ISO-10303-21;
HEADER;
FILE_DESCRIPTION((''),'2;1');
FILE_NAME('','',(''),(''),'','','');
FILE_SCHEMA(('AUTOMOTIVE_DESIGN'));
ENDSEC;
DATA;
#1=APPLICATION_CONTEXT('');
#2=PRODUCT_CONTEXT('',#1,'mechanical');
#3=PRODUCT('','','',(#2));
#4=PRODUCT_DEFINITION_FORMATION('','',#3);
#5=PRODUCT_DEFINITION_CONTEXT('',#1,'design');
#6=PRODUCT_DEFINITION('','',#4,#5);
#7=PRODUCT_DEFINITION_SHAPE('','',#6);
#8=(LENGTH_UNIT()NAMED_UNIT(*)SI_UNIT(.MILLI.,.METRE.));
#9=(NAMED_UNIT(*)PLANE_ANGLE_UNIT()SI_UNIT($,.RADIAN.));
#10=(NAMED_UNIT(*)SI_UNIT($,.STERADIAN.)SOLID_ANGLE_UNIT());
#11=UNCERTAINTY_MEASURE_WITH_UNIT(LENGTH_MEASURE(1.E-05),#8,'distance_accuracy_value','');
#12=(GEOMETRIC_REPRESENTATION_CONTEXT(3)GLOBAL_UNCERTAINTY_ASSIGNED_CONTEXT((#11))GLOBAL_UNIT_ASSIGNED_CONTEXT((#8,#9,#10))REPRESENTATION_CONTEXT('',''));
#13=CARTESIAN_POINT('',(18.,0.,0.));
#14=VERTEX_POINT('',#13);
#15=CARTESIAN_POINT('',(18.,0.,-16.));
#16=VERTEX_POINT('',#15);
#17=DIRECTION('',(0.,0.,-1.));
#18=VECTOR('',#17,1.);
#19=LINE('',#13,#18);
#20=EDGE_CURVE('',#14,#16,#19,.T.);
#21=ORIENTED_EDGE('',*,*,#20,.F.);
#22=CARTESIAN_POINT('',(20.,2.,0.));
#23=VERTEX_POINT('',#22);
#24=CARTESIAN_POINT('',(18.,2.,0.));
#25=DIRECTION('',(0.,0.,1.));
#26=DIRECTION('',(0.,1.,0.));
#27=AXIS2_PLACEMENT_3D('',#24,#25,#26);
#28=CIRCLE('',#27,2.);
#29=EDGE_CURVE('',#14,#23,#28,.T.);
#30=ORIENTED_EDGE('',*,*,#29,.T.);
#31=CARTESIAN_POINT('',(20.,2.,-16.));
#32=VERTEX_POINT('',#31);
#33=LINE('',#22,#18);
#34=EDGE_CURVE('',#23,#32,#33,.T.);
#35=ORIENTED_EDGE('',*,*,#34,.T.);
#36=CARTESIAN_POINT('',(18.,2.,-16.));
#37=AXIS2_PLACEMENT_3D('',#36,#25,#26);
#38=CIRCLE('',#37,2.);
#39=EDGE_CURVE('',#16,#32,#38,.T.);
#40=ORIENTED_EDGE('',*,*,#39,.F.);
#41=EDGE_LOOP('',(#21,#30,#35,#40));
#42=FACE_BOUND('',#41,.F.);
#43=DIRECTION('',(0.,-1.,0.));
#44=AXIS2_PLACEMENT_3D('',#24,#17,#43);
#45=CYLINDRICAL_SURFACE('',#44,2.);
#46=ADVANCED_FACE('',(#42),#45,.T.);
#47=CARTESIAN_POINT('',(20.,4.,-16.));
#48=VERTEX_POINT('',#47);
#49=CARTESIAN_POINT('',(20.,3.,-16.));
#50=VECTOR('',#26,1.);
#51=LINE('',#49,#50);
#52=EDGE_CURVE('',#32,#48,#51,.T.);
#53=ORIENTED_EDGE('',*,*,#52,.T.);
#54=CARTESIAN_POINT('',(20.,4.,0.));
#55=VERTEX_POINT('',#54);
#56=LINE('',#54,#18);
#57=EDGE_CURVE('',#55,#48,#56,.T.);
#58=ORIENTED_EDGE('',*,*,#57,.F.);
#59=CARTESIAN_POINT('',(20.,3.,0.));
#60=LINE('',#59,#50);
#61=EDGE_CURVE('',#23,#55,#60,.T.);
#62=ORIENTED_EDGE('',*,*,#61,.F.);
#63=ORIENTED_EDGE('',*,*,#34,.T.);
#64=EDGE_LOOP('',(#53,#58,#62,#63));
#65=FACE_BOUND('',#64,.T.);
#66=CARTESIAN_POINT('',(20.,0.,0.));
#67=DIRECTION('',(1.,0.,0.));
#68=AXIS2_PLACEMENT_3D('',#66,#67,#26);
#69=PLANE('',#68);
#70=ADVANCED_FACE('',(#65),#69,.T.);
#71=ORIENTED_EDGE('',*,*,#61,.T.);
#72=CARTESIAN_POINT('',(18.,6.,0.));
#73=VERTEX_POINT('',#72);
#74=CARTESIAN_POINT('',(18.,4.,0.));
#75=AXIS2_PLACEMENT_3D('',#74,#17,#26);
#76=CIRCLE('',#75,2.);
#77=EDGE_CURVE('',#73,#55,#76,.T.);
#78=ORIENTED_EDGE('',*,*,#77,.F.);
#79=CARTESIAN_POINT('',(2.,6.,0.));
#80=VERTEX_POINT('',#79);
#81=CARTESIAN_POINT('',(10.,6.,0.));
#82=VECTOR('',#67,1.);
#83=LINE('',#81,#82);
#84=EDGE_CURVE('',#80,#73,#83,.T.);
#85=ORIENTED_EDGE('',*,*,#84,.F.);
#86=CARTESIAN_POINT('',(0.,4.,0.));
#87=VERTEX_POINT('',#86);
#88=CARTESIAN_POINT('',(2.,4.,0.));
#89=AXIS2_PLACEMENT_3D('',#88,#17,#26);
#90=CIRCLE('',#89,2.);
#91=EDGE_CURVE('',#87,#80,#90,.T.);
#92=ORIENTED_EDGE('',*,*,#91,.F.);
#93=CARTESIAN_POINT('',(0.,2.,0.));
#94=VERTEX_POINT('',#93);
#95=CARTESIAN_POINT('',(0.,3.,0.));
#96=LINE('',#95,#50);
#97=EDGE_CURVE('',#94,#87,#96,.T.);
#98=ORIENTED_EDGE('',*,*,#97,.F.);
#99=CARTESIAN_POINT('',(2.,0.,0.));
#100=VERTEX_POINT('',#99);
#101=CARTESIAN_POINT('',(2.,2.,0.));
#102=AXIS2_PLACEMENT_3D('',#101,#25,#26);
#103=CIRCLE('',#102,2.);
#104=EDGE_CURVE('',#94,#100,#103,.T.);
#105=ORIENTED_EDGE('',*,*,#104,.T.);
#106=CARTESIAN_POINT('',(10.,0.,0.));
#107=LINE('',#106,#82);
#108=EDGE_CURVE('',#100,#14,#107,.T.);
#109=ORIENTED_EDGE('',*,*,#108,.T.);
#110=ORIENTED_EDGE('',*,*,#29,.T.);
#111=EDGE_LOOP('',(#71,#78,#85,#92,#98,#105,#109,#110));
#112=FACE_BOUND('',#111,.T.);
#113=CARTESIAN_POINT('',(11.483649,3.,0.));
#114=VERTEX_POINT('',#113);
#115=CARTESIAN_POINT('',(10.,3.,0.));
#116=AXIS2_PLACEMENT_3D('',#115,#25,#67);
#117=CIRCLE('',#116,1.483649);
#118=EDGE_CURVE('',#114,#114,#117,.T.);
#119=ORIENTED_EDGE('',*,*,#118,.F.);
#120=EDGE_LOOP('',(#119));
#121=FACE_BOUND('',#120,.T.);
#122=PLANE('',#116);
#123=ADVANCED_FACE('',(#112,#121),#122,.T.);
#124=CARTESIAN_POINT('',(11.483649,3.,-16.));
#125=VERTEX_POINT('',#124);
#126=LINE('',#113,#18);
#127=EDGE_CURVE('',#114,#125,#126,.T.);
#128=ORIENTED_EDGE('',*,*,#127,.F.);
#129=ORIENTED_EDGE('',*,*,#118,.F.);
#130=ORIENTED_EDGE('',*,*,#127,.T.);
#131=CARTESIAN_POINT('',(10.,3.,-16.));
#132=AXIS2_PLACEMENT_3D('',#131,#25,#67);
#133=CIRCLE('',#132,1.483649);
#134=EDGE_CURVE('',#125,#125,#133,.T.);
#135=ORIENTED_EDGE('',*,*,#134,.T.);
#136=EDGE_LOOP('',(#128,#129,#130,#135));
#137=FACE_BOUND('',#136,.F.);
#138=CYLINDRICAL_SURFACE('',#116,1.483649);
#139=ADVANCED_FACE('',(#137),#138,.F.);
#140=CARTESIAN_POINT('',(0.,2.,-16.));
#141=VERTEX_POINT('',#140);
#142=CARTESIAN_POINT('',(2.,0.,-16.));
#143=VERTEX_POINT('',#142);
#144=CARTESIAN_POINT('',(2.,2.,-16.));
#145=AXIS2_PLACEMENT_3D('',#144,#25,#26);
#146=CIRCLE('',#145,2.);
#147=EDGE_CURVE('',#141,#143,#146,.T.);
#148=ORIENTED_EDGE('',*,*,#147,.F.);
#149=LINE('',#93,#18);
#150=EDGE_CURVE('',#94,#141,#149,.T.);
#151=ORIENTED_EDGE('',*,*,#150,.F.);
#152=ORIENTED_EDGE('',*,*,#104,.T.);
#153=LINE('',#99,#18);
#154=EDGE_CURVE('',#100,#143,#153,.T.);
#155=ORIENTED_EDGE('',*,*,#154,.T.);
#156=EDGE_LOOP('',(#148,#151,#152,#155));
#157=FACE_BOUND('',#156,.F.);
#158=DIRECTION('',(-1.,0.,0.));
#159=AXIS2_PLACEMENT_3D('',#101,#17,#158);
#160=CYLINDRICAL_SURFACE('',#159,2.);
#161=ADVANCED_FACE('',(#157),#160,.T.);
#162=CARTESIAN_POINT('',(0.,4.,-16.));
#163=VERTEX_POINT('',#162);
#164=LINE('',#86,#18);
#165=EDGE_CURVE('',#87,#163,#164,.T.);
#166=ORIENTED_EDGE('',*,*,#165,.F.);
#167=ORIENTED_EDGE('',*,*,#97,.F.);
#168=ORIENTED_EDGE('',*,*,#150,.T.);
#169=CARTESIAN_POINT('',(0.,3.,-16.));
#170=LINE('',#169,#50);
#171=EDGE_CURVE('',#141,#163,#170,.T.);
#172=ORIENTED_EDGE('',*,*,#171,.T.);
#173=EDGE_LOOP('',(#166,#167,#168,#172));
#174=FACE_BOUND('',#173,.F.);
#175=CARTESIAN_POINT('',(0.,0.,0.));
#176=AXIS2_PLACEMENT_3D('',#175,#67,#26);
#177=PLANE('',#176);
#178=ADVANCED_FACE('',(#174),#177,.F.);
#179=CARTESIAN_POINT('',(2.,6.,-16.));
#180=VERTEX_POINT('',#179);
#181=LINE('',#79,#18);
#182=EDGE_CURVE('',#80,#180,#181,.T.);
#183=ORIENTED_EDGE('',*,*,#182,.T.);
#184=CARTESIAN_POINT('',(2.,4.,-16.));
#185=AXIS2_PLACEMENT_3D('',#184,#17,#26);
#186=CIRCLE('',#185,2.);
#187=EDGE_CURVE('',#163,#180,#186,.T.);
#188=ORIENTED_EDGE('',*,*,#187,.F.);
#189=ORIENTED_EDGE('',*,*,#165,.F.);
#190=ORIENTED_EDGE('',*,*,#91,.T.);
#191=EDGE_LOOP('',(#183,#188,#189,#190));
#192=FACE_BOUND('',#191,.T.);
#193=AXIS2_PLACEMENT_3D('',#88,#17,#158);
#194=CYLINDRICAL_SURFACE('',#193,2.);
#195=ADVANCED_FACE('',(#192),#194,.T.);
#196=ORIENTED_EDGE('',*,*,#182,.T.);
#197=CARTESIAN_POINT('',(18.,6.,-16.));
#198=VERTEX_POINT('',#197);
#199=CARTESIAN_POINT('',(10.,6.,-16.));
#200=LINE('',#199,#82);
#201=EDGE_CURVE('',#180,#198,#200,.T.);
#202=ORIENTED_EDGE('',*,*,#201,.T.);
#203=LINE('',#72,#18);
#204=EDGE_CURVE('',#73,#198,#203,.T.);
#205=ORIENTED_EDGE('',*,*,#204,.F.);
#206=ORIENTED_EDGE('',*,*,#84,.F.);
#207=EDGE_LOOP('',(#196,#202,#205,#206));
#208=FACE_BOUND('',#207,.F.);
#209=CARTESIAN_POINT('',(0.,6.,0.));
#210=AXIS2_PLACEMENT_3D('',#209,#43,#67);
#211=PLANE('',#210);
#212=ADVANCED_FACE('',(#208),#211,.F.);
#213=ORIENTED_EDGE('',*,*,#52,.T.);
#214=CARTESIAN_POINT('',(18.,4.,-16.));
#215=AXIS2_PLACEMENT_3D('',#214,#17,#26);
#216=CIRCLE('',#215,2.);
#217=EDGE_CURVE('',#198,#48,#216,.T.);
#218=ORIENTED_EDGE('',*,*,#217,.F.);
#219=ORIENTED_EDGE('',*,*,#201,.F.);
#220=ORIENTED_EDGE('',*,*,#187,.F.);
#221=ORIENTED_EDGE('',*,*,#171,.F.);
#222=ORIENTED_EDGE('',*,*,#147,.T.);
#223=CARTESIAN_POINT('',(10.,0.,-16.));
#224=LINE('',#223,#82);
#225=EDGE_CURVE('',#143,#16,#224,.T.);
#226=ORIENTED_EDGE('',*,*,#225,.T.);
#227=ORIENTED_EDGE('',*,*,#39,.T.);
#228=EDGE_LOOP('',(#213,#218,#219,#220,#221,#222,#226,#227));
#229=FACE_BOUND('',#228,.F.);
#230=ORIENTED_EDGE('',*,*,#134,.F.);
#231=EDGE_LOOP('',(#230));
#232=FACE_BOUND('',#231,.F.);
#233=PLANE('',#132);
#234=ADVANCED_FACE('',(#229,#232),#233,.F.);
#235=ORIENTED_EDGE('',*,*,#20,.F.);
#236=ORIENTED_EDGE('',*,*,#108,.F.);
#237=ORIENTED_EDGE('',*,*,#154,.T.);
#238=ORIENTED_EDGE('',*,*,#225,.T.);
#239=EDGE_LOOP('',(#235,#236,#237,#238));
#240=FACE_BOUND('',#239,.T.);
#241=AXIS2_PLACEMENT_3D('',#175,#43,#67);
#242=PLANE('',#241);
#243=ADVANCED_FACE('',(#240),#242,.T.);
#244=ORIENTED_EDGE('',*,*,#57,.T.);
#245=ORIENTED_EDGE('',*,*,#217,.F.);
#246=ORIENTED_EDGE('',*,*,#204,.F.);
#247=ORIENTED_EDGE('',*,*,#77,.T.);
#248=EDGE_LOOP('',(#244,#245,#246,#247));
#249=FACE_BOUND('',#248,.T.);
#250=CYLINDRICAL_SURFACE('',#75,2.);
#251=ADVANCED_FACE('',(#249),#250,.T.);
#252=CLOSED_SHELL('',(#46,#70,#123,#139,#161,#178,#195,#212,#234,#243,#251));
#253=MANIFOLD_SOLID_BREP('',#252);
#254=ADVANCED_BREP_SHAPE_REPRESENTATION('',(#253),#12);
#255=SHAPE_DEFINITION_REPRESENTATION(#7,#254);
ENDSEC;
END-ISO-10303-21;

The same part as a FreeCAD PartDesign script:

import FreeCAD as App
import Part
import Sketcher

V = App.Vector


def edges_at(feature, points):
    """Names of the edges that pass closest to the given points."""
    edges = feature.Shape.Edges
    near = lambda p: min(range(len(edges)), key=lambda i: edges[i].distToShape(Part.Vertex(*p))[0])
    return sorted({f"Edge{near(p) + 1}" for p in points})


def add_polygon(sketch, points):
    """Adds a closed chain of lines whose ends are joined by coincident constraints."""
    first, n = sketch.GeometryCount, len(points)
    for a, b in zip(points, points[1:] + points[:1]):
        sketch.addGeometry(Part.LineSegment(App.Vector(*a, 0), App.Vector(*b, 0)), False)
    for i in range(n):
        sketch.addConstraint(Sketcher.Constraint("Coincident", first + i, 2, first + (i + 1) % n, 1))

doc = App.newDocument("Part")
params = doc.addObject("Spreadsheet::Sheet", "Params")
for row, (alias, value) in enumerate([
    ("sketch1_width", "20 mm"),
    ("sketch1_height", "6 mm"),
    ("pad1_length", "16 mm"),
    ("fillet_radius", "2 mm"),
], start=1):
    params.set(f"A{row}", alias)
    params.set(f"B{row}", "=" + value)
    params.setAlias(f"B{row}", alias)

body = doc.addObject("PartDesign::Body", "Body")

sketch1 = body.newObject("Sketcher::SketchObject", "Sketch")
sketch1.AttachmentSupport = (doc.getObject("XY_Plane"), [""])
sketch1.MapMode = "FlatFace"
add_polygon(sketch1, [(0, 6), (0, 0), (20, 0), (20, 6)])
sketch1.addGeometry(Part.Circle(V(10, 3, 0), V(0, 0, 1), 1.5), False)
sketch1.addConstraint([
    Sketcher.Constraint("Vertical", 0),
    Sketcher.Constraint("Horizontal", 1),
    Sketcher.Constraint("Vertical", 2),
    Sketcher.Constraint("Horizontal", 3),
    Sketcher.Constraint("Coincident", 0, 2, -1, 1),
    Sketcher.Constraint("DistanceX", 1, 1, 1, 2, 20.0),
    Sketcher.Constraint("DistanceY", 0, 2, 0, 1, 6.0),
    Sketcher.Constraint("DistanceX", -1, 1, 4, 3, 10.0),
    Sketcher.Constraint("DistanceY", -1, 1, 4, 3, 3.0),
    Sketcher.Constraint("Diameter", 4, 2.967298),
])
sketch1.setExpression("Constraints[9]", "Params.sketch1_width")
sketch1.setExpression("Constraints[10]", "Params.sketch1_height")
pad1 = body.newObject("PartDesign::Pad", "Pad")
pad1.Profile = sketch1
pad1.setExpression("Length", "Params.pad1_length")
pad1.Reversed = True
doc.recompute()

fillet = body.newObject("PartDesign::Fillet", "Fillet")
fillet.Base = (pad1, edges_at(pad1, [
    (20, 6, -8),
    (0, 6, -8),
    (20, 0, -8),
    (0, 0, -8),
]))
fillet.setExpression("Radius", "Params.fillet_radius")

doc.recompute()
